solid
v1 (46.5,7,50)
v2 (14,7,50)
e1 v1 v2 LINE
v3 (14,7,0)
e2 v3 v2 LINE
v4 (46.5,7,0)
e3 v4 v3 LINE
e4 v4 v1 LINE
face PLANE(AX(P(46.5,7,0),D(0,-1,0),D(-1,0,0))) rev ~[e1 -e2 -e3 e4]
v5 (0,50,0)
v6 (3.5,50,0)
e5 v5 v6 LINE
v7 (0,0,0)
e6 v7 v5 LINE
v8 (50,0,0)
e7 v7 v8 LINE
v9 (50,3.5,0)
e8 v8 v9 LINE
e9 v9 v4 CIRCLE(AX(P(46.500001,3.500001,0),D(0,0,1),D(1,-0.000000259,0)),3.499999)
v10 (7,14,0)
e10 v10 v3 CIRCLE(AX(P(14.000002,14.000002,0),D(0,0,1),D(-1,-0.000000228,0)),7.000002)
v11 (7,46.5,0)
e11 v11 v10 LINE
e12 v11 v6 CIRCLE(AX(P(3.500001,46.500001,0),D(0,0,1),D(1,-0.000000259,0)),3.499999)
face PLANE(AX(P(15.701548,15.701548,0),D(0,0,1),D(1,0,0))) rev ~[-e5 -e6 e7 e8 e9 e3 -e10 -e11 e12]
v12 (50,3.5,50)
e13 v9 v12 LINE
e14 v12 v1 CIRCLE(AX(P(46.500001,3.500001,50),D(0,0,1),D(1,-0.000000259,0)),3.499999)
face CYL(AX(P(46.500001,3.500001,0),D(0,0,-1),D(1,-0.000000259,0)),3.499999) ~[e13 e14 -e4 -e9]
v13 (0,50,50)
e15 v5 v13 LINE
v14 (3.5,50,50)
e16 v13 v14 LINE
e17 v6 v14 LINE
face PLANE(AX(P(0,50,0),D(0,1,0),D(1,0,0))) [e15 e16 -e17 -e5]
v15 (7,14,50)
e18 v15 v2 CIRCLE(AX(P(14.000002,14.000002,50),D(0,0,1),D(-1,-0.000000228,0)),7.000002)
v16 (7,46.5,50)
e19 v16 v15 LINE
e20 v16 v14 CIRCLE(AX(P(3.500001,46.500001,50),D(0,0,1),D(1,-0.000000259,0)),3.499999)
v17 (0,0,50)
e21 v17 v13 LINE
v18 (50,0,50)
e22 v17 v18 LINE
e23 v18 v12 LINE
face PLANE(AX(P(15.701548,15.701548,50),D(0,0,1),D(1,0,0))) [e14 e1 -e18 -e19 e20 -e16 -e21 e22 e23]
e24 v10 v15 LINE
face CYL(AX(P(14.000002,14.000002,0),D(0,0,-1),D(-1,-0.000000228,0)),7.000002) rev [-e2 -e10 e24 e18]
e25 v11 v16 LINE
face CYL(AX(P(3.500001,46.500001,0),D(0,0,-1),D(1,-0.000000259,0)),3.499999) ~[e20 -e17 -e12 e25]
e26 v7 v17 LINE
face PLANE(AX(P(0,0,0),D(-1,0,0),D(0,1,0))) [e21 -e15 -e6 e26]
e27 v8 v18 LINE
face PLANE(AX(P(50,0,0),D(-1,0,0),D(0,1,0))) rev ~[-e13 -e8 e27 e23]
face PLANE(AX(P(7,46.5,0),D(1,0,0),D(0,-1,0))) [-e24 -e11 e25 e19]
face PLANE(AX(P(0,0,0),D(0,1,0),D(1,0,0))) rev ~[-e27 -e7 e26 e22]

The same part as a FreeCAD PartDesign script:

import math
import FreeCAD as App
import Part
import Sketcher

doc = App.newDocument("Part")
body = doc.addObject("PartDesign::Body", "Body")

# Sketch on XY plane
sketch1 = doc.addObject("Sketcher::SketchObject", "Sketch")
body.addObject(sketch1)
sketch1.AttachmentSupport = (doc.XY_Plane, [""])
sketch1.MapMode = "FlatFace"
sketch1.addGeometry([
    Part.LineSegment(App.Vector(0, 0, 0), App.Vector(50, 0, 0)),  # 0
    Part.LineSegment(App.Vector(50, 0, 0), App.Vector(50, 3.5, 0)),  # 1
    Part.ArcOfCircle(Part.Circle(App.Vector(46.500001, 3.500001, 0), App.Vector(0, 0, 1), 3.499999), math.radians(-0.000015), math.radians(90.000015)),  # 2
    Part.LineSegment(App.Vector(46.5, 7, 0), App.Vector(14, 7, 0)),  # 3
    Part.ArcOfCircle(Part.Circle(App.Vector(14.000002, 14.000002, 0), App.Vector(0, 0, 1), 7.000002), math.radians(-179.999987), math.radians(-90.000013)),  # 4
    Part.LineSegment(App.Vector(7, 14, 0), App.Vector(7, 46.5, 0)),  # 5
    Part.ArcOfCircle(Part.Circle(App.Vector(3.500001, 46.500001, 0), App.Vector(0, 0, 1), 3.499999), math.radians(-0.000015), math.radians(90.000015)),  # 6
    Part.LineSegment(App.Vector(3.5, 50, 0), App.Vector(0, 50, 0)),  # 7
    Part.LineSegment(App.Vector(0, 50, 0), App.Vector(0, 0, 0)),  # 8
], False)
sketch1.addConstraint([
    Sketcher.Constraint("Coincident", 0, 2, 1, 1),
    Sketcher.Constraint("Tangent", 1, 2, 2, 1),
    Sketcher.Constraint("Tangent", 2, 2, 3, 1),
    Sketcher.Constraint("Tangent", 3, 2, 4, 2),
    Sketcher.Constraint("Tangent", 4, 1, 5, 1),
    Sketcher.Constraint("Tangent", 5, 2, 6, 1),
    Sketcher.Constraint("Tangent", 6, 2, 7, 1),
    Sketcher.Constraint("Coincident", 7, 2, 8, 1),
    Sketcher.Constraint("Coincident", 8, 2, 0, 1),
    Sketcher.Constraint("Horizontal", 0),
    Sketcher.Constraint("Vertical", 1),
    Sketcher.Constraint("Horizontal", 3),
    Sketcher.Constraint("Vertical", 5),
    Sketcher.Constraint("Horizontal", 7),
    Sketcher.Constraint("Vertical", 8),
    Sketcher.Constraint("Coincident", 8, 2, -1, 1),
    Sketcher.Constraint("Equal", 2, 6),
    Sketcher.Constraint("Equal", 7, 1),
    Sketcher.Constraint("Equal", 3, 5),
    Sketcher.Constraint("Radius", 4, 7.000002),
    Sketcher.Constraint("Radius", 2, 3.499999),
    Sketcher.Constraint("DistanceX", 0, 1, 0, 2, 50.0),
    Sketcher.Constraint("DistanceX", 3, 2, 3, 1, 32.5),
])
pad1 = doc.addObject("PartDesign::Pad", "Pad")
body.addObject(pad1)
pad1.Profile = sketch1
pad1.Length = 50

doc.recompute()
